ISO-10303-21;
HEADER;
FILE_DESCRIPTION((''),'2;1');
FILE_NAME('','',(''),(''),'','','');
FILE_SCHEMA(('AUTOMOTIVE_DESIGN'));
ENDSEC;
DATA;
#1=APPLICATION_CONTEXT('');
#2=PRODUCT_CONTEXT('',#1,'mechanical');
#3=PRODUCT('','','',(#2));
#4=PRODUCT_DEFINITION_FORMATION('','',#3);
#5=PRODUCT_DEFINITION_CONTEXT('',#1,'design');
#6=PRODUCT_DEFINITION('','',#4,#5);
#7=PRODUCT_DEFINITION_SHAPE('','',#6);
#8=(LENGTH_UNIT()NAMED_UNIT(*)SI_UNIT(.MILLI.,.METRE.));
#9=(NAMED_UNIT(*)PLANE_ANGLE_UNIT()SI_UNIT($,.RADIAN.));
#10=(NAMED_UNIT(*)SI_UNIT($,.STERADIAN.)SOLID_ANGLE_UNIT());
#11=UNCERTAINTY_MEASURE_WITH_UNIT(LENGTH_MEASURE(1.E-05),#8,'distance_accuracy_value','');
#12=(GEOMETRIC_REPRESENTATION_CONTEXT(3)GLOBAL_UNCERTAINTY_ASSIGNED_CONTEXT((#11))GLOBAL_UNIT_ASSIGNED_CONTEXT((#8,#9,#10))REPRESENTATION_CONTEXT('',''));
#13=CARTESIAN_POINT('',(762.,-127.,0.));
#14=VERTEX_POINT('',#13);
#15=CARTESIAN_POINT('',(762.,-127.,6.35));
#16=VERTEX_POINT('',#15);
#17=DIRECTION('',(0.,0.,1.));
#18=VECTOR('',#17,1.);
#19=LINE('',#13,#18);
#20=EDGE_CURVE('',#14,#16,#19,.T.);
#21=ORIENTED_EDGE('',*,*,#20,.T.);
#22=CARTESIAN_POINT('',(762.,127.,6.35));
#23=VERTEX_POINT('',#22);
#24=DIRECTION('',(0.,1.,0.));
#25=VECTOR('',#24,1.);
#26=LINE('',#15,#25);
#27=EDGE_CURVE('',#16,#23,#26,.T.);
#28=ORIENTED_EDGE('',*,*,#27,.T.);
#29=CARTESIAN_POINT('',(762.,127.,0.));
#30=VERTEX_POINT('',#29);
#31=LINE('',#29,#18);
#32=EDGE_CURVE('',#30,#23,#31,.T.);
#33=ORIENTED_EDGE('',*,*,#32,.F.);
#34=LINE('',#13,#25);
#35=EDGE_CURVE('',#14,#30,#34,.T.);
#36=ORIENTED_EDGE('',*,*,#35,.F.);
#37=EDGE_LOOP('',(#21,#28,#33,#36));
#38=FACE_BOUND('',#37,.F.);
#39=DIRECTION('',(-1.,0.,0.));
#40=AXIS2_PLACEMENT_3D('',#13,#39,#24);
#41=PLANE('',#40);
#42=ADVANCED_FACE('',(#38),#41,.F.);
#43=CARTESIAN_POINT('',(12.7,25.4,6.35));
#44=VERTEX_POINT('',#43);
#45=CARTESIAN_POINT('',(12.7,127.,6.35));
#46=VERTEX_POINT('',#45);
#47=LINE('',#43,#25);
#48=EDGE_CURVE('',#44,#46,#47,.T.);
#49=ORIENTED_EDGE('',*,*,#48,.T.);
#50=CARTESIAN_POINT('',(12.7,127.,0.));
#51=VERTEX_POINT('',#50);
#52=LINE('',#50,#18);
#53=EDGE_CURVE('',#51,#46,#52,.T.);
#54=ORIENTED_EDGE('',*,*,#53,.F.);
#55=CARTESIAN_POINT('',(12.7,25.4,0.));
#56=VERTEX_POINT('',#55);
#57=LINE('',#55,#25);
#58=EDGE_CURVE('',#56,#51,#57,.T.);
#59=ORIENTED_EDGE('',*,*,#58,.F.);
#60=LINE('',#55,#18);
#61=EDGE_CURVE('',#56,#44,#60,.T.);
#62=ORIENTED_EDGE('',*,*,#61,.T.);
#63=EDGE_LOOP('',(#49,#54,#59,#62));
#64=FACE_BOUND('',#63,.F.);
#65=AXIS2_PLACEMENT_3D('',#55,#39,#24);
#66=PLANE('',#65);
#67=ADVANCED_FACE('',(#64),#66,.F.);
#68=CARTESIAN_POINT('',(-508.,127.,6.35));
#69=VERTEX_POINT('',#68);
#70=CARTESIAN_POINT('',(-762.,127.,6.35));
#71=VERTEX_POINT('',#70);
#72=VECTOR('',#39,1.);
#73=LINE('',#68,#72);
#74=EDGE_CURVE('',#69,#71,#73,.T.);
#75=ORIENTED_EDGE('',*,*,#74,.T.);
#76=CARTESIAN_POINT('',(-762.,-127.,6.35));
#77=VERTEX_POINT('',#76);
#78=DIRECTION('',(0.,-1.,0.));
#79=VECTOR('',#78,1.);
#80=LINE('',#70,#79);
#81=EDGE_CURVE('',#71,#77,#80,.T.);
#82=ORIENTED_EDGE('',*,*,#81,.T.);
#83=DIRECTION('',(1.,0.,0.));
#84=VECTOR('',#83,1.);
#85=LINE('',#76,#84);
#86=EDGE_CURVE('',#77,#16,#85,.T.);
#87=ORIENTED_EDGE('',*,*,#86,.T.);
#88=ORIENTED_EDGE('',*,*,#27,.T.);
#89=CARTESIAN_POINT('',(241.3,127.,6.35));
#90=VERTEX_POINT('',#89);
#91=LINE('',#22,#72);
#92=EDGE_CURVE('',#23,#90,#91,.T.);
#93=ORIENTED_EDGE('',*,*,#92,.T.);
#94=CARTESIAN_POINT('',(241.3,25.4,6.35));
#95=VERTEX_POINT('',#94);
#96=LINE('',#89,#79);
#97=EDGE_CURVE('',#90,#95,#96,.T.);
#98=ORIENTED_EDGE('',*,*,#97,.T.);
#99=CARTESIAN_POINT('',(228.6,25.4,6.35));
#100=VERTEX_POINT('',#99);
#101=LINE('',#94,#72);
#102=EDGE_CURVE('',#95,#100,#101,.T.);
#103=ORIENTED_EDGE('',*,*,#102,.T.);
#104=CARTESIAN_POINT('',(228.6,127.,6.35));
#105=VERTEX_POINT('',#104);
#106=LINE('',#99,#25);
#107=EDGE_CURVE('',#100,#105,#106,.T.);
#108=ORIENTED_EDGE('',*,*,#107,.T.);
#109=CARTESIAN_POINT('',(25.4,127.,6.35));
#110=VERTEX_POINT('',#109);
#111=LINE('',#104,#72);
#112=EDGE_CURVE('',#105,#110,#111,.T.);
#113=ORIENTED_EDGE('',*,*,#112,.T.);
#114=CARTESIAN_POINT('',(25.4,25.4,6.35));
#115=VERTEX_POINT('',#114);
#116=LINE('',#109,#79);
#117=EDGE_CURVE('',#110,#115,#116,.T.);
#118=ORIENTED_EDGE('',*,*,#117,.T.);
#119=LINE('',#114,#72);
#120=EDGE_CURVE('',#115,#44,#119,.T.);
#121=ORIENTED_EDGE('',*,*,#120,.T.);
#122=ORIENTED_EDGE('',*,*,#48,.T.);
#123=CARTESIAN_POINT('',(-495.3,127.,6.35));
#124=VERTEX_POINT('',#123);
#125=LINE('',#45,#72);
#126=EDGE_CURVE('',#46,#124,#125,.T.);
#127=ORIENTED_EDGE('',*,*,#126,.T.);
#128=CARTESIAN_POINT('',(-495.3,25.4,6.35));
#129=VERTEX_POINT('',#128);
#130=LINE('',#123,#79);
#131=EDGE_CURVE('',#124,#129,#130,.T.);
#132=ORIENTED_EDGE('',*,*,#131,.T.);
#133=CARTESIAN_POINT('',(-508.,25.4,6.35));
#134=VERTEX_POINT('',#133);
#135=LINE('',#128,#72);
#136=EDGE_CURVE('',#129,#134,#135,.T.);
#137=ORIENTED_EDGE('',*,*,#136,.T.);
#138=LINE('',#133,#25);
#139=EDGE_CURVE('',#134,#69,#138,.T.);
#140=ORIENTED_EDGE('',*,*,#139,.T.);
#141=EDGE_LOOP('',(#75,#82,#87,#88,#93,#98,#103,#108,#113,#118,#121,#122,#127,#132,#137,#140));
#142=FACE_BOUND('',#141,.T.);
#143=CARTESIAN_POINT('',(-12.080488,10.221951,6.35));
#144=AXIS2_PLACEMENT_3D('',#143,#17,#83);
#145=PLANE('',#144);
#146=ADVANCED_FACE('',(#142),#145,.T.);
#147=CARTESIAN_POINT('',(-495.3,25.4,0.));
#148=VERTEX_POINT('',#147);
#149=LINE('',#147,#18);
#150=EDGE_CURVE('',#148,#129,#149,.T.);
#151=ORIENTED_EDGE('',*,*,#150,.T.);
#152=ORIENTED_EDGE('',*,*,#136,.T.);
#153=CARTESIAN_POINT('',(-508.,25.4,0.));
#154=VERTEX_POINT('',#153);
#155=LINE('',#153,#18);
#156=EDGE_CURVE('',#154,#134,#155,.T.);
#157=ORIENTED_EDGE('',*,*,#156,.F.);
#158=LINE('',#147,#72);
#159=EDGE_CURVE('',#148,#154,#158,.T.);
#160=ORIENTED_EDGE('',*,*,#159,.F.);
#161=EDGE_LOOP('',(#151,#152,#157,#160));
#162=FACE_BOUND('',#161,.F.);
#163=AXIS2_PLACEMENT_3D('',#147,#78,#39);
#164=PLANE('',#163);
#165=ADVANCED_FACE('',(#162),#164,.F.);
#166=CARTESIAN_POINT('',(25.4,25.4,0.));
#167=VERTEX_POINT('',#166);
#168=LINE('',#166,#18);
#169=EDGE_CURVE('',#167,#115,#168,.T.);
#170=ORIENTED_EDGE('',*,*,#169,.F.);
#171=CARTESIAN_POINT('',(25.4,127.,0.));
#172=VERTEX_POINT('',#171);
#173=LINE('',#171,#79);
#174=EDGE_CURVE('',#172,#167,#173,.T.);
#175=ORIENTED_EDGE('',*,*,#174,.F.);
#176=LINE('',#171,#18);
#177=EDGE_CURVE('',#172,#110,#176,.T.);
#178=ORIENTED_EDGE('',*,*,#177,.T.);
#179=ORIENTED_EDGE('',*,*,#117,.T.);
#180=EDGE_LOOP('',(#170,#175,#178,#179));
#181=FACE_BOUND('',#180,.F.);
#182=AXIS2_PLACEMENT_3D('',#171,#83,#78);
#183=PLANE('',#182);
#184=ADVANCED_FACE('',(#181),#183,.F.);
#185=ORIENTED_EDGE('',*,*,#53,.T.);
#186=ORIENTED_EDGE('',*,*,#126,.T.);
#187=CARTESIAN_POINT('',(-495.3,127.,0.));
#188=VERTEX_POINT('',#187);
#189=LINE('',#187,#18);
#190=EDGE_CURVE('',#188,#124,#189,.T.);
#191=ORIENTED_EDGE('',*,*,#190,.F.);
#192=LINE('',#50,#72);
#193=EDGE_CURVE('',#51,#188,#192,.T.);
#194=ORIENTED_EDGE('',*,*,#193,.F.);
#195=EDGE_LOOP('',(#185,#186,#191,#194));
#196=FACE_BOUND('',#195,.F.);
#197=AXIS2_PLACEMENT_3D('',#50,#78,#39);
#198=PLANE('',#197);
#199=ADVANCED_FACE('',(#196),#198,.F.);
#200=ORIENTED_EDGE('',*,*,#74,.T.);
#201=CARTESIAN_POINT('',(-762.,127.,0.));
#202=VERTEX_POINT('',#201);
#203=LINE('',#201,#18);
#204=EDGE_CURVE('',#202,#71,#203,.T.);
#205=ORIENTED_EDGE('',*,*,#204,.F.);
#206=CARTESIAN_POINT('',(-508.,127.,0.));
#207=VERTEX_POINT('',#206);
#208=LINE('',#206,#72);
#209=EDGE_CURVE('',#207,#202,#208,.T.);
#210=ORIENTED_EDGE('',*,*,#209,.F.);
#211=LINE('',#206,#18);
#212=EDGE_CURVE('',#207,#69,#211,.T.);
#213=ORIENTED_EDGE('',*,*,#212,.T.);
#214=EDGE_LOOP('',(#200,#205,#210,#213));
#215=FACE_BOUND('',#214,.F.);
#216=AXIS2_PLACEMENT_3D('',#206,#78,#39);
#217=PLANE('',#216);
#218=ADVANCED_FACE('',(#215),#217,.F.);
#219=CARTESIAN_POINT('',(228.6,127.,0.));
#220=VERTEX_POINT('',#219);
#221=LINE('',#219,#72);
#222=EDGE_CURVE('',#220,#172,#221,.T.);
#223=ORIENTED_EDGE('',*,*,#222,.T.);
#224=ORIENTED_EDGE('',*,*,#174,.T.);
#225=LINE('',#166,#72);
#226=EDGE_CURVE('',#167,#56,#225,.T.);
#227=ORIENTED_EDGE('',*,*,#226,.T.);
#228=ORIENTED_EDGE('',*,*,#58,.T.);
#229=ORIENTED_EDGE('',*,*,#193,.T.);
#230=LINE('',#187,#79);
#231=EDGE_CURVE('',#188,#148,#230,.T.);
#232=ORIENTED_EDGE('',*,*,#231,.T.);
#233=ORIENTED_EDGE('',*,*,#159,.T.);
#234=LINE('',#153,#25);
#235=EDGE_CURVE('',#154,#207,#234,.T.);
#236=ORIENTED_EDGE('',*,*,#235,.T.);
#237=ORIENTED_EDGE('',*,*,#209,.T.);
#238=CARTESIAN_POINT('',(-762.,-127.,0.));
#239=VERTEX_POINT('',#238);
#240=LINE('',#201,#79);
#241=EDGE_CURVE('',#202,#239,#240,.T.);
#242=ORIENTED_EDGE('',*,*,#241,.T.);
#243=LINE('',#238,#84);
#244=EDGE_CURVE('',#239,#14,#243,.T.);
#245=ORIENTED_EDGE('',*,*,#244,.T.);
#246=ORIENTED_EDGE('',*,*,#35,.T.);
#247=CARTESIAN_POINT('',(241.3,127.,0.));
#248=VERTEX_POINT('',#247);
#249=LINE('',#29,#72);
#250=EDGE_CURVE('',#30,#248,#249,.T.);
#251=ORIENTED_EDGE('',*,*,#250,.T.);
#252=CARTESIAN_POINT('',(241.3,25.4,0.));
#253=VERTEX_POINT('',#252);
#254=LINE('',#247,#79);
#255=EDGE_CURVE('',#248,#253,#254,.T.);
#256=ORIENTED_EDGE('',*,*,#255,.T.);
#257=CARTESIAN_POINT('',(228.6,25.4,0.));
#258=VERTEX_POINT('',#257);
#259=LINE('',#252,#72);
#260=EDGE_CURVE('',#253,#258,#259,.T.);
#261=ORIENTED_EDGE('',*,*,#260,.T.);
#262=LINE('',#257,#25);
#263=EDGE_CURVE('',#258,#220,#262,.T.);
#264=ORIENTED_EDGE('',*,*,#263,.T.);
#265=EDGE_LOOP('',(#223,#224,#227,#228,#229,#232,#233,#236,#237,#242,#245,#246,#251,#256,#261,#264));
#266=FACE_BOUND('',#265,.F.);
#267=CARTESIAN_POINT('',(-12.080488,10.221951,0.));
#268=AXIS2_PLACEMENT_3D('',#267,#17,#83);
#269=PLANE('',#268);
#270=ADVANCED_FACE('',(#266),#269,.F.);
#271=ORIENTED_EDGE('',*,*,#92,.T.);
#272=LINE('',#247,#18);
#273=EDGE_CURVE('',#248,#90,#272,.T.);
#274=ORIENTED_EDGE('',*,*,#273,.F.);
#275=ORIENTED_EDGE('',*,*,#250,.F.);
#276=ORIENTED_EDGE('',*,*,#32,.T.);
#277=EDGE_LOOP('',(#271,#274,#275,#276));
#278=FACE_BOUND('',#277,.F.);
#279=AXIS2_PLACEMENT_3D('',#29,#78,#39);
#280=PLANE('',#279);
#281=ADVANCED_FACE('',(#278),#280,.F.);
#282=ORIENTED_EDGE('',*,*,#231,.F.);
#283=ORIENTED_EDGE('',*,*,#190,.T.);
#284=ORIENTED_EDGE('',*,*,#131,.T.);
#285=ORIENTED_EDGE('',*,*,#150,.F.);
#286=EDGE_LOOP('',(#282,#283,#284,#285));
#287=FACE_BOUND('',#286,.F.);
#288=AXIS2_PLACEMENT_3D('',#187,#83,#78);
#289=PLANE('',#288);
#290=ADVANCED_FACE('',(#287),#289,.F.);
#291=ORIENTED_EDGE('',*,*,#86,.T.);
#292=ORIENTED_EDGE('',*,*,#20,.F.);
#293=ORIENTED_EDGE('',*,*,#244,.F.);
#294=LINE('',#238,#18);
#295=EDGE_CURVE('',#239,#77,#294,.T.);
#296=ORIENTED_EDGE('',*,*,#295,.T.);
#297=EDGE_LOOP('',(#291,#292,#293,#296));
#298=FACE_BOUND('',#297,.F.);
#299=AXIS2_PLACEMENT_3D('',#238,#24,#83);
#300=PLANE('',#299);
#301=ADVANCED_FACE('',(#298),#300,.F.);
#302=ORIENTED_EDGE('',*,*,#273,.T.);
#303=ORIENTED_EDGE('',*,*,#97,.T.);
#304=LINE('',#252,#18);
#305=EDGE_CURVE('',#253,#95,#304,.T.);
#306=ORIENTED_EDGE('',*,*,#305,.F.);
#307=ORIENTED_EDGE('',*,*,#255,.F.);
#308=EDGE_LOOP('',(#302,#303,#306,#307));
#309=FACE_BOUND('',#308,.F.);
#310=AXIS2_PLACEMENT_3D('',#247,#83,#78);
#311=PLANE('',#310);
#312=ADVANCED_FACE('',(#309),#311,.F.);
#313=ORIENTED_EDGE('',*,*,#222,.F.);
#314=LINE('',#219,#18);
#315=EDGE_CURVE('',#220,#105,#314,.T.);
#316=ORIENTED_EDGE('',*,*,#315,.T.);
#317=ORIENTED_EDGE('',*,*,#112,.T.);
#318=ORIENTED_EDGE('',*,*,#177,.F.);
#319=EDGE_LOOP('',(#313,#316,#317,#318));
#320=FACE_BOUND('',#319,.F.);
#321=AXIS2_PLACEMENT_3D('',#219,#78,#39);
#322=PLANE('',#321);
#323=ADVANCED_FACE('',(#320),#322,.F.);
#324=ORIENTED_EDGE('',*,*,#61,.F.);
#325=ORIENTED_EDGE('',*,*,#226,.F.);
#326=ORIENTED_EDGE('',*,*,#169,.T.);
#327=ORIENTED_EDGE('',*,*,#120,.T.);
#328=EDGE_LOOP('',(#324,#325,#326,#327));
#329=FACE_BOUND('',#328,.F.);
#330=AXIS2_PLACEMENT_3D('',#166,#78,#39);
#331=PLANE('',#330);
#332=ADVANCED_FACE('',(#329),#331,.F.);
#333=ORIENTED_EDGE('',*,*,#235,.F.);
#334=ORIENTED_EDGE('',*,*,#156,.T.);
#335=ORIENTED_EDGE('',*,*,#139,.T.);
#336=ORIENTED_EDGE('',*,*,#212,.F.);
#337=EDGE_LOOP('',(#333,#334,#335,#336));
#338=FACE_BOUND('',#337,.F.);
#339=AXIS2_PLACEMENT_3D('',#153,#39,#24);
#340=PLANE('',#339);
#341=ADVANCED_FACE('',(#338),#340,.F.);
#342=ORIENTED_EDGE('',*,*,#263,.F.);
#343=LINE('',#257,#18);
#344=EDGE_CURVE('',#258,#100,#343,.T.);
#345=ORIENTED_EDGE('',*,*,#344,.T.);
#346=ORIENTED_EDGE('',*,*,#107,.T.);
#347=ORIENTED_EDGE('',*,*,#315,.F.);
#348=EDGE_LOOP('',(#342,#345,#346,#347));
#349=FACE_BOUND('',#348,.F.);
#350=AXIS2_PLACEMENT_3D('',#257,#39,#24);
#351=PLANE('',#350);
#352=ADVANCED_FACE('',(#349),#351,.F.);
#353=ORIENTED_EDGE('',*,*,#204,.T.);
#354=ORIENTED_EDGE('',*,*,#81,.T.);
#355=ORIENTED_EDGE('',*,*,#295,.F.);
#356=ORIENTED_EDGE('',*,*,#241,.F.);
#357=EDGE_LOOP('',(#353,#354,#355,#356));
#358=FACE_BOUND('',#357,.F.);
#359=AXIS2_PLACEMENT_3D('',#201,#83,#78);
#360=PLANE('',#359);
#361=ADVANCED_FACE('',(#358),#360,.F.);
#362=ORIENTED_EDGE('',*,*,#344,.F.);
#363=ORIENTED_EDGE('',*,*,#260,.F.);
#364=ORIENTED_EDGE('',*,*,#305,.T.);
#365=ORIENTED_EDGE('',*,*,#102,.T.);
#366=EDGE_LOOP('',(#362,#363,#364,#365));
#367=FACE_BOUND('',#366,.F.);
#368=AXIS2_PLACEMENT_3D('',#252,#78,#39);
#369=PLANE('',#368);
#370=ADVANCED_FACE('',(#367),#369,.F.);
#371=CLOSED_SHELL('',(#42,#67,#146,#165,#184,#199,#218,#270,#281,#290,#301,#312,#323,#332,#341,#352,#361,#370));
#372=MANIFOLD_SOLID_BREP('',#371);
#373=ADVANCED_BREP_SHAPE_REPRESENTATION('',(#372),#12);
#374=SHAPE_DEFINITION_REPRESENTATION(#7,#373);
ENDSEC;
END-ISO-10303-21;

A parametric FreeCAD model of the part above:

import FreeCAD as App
import Part
import Sketcher

V = App.Vector
Q = App.Units.Quantity

doc = App.newDocument("Part")
params = doc.addObject("Spreadsheet::Sheet", "Params")
for row, (alias, value) in enumerate([
    ("sketch1_width", "10 in"),
    ("sketch1_width2", "60 in"),
    ("sketch1_width3", "8 in"),
    ("sketch1_width4", "20 in"),
    ("sketch1_height", "4 in"),
    ("pad1_length", "0.25 in"),
], start=1):
    params.set(f"A{row}", alias)
    params.set(f"B{row}", "=" + value)
    params.setAlias(f"B{row}", alias)

body = doc.addObject("PartDesign::Body", "Body")

sketch1 = body.newObject("Sketcher::SketchObject", "Sketch")
sketch1.AttachmentSupport = (doc.getObject("XY_Plane"), [""])
sketch1.MapMode = "FlatFace"
sketch1.addGeometry([
    Part.LineSegment(V(-508, 127, 0), V(-762, 127, 0)),
    Part.LineSegment(V(-762, 127, 0), V(-762, -127, 0)),
    Part.LineSegment(V(-762, -127, 0), V(762, -127, 0)),
    Part.LineSegment(V(762, -127, 0), V(762, 127, 0)),
    Part.LineSegment(V(762, 127, 0), V(241, 127, 0)),
    Part.LineSegment(V(241, 127, 0), V(241, 25, 0)),
    Part.LineSegment(V(241, 25, 0), V(229, 25, 0)),
    Part.LineSegment(V(229, 25, 0), V(229, 127, 0)),
    Part.LineSegment(V(229, 127, 0), V(25, 127, 0)),
    Part.LineSegment(V(25, 127, 0), V(25, 25, 0)),
    Part.LineSegment(V(25, 25, 0), V(13, 25, 0)),
    Part.LineSegment(V(13, 25, 0), V(13, 127, 0)),
    Part.LineSegment(V(13, 127, 0), V(-495, 127, 0)),
    Part.LineSegment(V(-495, 127, 0), V(-495, 25, 0)),
    Part.LineSegment(V(-495, 25, 0), V(-508, 25, 0)),
    Part.LineSegment(V(-508, 25, 0), V(-508, 127, 0)),
], False)
sketch1.addConstraint([
    Sketcher.Constraint("Coincident", 0, 2, 1, 1),
    Sketcher.Constraint("Coincident", 1, 2, 2, 1),
    Sketcher.Constraint("Coincident", 2, 2, 3, 1),
    Sketcher.Constraint("Coincident", 3, 2, 4, 1),
    Sketcher.Constraint("Coincident", 4, 2, 5, 1),
    Sketcher.Constraint("Coincident", 5, 2, 6, 1),
    Sketcher.Constraint("Coincident", 6, 2, 7, 1),
    Sketcher.Constraint("Coincident", 7, 2, 8, 1),
    Sketcher.Constraint("Coincident", 8, 2, 9, 1),
    Sketcher.Constraint("Coincident", 9, 2, 10, 1),
    Sketcher.Constraint("Coincident", 10, 2, 11, 1),
    Sketcher.Constraint("Coincident", 11, 2, 12, 1),
    Sketcher.Constraint("Coincident", 12, 2, 13, 1),
    Sketcher.Constraint("Coincident", 13, 2, 14, 1),
    Sketcher.Constraint("Coincident", 14, 2, 15, 1),
    Sketcher.Constraint("Coincident", 15, 2, 0, 1),
    Sketcher.Constraint("Horizontal", 0),
    Sketcher.Constraint("Vertical", 1),
    Sketcher.Constraint("Horizontal", 2),
    Sketcher.Constraint("Vertical", 3),
    Sketcher.Constraint("Horizontal", 4),
    Sketcher.Constraint("Vertical", 5),
    Sketcher.Constraint("Horizontal", 6),
    Sketcher.Constraint("Vertical", 7),
    Sketcher.Constraint("Horizontal", 8),
    Sketcher.Constraint("Vertical", 9),
    Sketcher.Constraint("Horizontal", 10),
    Sketcher.Constraint("Vertical", 11),
    Sketcher.Constraint("Horizontal", 12),
    Sketcher.Constraint("Vertical", 13),
    Sketcher.Constraint("Horizontal", 14),
    Sketcher.Constraint("Vertical", 15),
    Sketcher.Constraint("Symmetric", 0, 2, 2, 2, -1, 1),
    Sketcher.Constraint("Horizontal", 0, 2, 3, 2),
    Sketcher.Constraint("Horizontal", 4, 2, 7, 2),
    Sketcher.Constraint("Horizontal", 6, 2, 9, 2),
    Sketcher.Constraint("Horizontal", 8, 2, 11, 2),
    Sketcher.Constraint("Horizontal", 10, 2, 13, 2),
    Sketcher.Constraint("Equal", 6, 10),
    Sketcher.Constraint("Equal", 10, 14),
    Sketcher.Constraint("Equal", 0, 1),
    Sketcher.Constraint("DistanceX", 0, 2, 0, 1, Q("10 in")),
    Sketcher.Constraint("DistanceX", 2, 1, 2, 2, Q("60 in")),
    Sketcher.Constraint("DistanceX", 8, 2, 8, 1, Q("8 in")),
    Sketcher.Constraint("DistanceX", 12, 2, 12, 1, Q("20 in")),
    Sketcher.Constraint("DistanceY", 5, 2, 5, 1, Q("4 in")),
    Sketcher.Constraint("DistanceX", 4, 2, 4, 1, Q("20.5 in")),
])
sketch1.setExpression("Constraints[41]", "Params.sketch1_width")
sketch1.setExpression("Constraints[42]", "Params.sketch1_width2")
sketch1.setExpression("Constraints[43]", "Params.sketch1_width3")
sketch1.setExpression("Constraints[44]", "Params.sketch1_width4")
sketch1.setExpression("Constraints[45]", "Params.sketch1_height")
pad1 = body.newObject("PartDesign::Pad", "Pad")
pad1.Profile = sketch1
pad1.setExpression("Length", "Params.pad1_length")

doc.recompute()
